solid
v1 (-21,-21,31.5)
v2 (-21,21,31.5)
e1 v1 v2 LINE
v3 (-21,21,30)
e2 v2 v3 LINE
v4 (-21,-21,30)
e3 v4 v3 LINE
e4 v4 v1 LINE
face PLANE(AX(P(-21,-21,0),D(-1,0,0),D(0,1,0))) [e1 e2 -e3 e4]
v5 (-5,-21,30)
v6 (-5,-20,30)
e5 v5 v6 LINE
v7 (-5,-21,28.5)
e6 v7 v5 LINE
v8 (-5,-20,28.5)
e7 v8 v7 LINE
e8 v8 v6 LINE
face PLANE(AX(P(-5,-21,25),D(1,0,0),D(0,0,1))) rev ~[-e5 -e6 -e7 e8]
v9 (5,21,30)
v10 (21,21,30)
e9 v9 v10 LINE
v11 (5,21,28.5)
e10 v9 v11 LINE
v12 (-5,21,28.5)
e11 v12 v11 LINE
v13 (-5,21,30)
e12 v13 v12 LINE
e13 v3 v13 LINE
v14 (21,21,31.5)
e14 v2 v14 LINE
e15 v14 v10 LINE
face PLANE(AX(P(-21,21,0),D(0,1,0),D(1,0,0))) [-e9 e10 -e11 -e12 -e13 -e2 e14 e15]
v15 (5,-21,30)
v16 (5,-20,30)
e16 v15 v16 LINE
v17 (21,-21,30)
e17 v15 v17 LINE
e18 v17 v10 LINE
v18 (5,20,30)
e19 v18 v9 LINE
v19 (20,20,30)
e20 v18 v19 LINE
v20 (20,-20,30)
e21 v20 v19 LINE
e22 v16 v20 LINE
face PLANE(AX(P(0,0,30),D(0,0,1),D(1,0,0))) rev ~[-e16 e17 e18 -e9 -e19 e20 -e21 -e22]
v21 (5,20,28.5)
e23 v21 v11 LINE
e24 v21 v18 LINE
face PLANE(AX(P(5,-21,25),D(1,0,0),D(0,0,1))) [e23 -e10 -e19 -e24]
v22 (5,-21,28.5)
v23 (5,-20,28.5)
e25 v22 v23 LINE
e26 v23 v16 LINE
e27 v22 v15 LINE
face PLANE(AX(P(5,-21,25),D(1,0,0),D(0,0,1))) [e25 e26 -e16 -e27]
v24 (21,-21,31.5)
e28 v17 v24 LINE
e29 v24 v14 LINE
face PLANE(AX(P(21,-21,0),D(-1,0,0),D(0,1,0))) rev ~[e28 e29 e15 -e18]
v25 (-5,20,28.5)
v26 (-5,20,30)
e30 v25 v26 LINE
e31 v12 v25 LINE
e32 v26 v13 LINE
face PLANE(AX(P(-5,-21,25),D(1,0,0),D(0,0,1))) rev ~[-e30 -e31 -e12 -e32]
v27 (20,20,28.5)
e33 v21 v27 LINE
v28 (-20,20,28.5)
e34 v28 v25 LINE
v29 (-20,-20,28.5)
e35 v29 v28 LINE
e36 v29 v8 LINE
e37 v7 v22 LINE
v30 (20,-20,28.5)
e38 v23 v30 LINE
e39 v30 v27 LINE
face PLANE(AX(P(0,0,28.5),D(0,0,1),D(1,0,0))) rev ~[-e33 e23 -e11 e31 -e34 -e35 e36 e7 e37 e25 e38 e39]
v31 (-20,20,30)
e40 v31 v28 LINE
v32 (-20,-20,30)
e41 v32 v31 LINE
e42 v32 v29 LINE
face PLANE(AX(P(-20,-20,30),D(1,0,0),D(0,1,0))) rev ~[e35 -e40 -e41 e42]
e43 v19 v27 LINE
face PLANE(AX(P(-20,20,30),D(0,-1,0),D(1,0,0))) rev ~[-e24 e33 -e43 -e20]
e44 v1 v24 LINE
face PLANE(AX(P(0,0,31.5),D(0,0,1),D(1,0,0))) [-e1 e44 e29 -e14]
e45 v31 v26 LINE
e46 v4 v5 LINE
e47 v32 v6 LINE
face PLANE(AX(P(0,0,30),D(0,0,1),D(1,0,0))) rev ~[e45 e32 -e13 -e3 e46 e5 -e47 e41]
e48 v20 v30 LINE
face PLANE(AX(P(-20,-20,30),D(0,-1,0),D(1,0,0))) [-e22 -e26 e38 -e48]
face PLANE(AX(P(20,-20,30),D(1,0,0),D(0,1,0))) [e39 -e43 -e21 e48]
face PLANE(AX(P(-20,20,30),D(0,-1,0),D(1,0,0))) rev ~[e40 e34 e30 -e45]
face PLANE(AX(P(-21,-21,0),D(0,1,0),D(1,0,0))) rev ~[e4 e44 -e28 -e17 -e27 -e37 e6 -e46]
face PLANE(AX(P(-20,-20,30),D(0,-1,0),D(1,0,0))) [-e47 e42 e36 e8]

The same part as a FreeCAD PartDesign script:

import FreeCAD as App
import Part
import Sketcher
Q = App.Units.Quantity


def add_polygon(sketch, points):
    """Adds a closed chain of lines whose ends are joined by coincident constraints."""
    first, n = sketch.GeometryCount, len(points)
    for a, b in zip(points, points[1:] + points[:1]):
        sketch.addGeometry(Part.LineSegment(App.Vector(*a, 0), App.Vector(*b, 0)), False)
    for i in range(n):
        sketch.addConstraint(Sketcher.Constraint("Coincident", first + i, 2, first + (i + 1) % n, 1))

doc = App.newDocument("Part")
body = doc.addObject("PartDesign::Body", "Body")

# Sketch on XY plane
sketch1 = body.newObject("Sketcher::SketchObject", "Sketch")
sketch1.AttachmentSupport = (doc.getObject("XY_Plane"), [""])
sketch1.MapMode = "FlatFace"
add_polygon(sketch1, [(-21, 21), (-21, -21), (21, -21), (21, 21)])  # lines 0-3
sketch1.addConstraint([
    Sketcher.Constraint("Vertical", 0),
    Sketcher.Constraint("Horizontal", 1),
    Sketcher.Constraint("Vertical", 2),
    Sketcher.Constraint("Horizontal", 3),
    Sketcher.Constraint("Symmetric", 0, 2, 2, 2, -1, 1),
    Sketcher.Constraint("Equal", 3, 0),
    Sketcher.Constraint("DistanceX", 1, 1, 1, 2, Q("42 mm")),
])
pad1 = body.newObject("PartDesign::Pad", "Pad")
pad1.Profile = sketch1
pad1.Length = 30

# Sketch on XY plane
sketch2 = body.newObject("Sketcher::SketchObject", "Sketch001")
sketch2.AttachmentSupport = (doc.getObject("XY_Plane"), [""])
sketch2.MapMode = "FlatFace"
sketch2.AttachmentOffset = App.Placement(App.Vector(0, 0, 30), App.Rotation())
add_polygon(sketch2, [(-20, 20), (-20, -20), (20, -20), (20, 20)])  # lines 0-3
sketch2.addConstraint([
    Sketcher.Constraint("Vertical", 0),
    Sketcher.Constraint("Horizontal", 1),
    Sketcher.Constraint("Vertical", 2),
    Sketcher.Constraint("Horizontal", 3),
    Sketcher.Constraint("Symmetric", 0, 2, 2, 2, -1, 1),
    Sketcher.Constraint("Equal", 3, 0),
    Sketcher.Constraint("DistanceX", 1, 1, 1, 2, Q("40 mm")),
])
pocket1 = body.newObject("PartDesign::Pocket", "Pocket")
pocket1.Profile = sketch2
pocket1.Length = 1.5

# Sketch on XY plane
sketch3 = body.newObject("Sketcher::SketchObject", "Sketch002")
sketch3.AttachmentSupport = (doc.getObject("XY_Plane"), [""])
sketch3.MapMode = "FlatFace"
sketch3.AttachmentOffset = App.Placement(App.Vector(0, 0, 28.5), App.Rotation())
add_polygon(sketch3, [(-19, 19), (-19, -19), (19, -19), (19, 19)])  # lines 0-3
sketch3.addConstraint([
    Sketcher.Constraint("Vertical", 0),
    Sketcher.Constraint("Horizontal", 1),
    Sketcher.Constraint("Vertical", 2),
    Sketcher.Constraint("Horizontal", 3),
    Sketcher.Constraint("Symmetric", 0, 2, 2, 2, -1, 1),
    Sketcher.Constraint("Equal", 3, 0),
    Sketcher.Constraint("DistanceX", 1, 1, 1, 2, Q("38 mm")),
])
pocket2 = body.newObject("PartDesign::Pocket", "Pocket001")
pocket2.Profile = sketch3
pocket2.Length = 28

# Sketch on XZ plane
sketch4 = body.newObject("Sketcher::SketchObject", "Sketch003")
sketch4.AttachmentSupport = (doc.getObject("XZ_Plane"), [""])
sketch4.MapMode = "FlatFace"
sketch4.AttachmentOffset = App.Placement(App.Vector(0, 0, 21), App.Rotation())
add_polygon(sketch4, [(-5, 30), (-5, 25), (5, 25), (5, 30)])  # lines 0-3
sketch4.addConstraint([
    Sketcher.Constraint("Vertical", 0),
    Sketcher.Constraint("Horizontal", 1),
    Sketcher.Constraint("Vertical", 2),
    Sketcher.Constraint("Horizontal", 3),
    Sketcher.Constraint("DistanceX", 1, 1, 1, 2, Q("10 mm")),
    Sketcher.Constraint("DistanceY", 0, 2, 0, 1, Q("5 mm")),
    Sketcher.Constraint("DistanceX", 0, 2, -1, 1, Q("5 mm")),
    Sketcher.Constraint("DistanceY", -1, 1, 0, 2, Q("25 mm")),
])
pocket3 = body.newObject("PartDesign::Pocket", "Pocket002")
pocket3.Profile = sketch4
pocket3.Length = 300
body2 = doc.addObject("PartDesign::Body", "Body001")
doc.recompute()

body2.BaseFeature = body
doc.recompute()

# Sketch on XY plane
sketch5 = body2.newObject("Sketcher::SketchObject", "Sketch004")
sketch5.AttachmentSupport = (doc.getObject("XY_Plane001"), [""])
sketch5.MapMode = "FlatFace"
sketch5.AttachmentOffset = App.Placement(App.Vector(0, 0, 30), App.Rotation())
add_polygon(sketch5, [(-21, 21), (-21, -21), (21, -21), (21, 21)])  # lines 0-3
sketch5.addConstraint([
    Sketcher.Constraint("Vertical", 0),
    Sketcher.Constraint("Horizontal", 1),
    Sketcher.Constraint("Vertical", 2),
    Sketcher.Constraint("Horizontal", 3),
    Sketcher.Constraint("Symmetric", 0, 2, 2, 2, -1, 1),
    Sketcher.Constraint("Equal", 3, 0),
    Sketcher.Constraint("DistanceX", 1, 1, 1, 2, Q("42 mm")),
])
pad2 = body2.newObject("PartDesign::Pad", "Pad001")
pad2.Profile = sketch5
pad2.Length = 3
pad2.Midplane = True
doc.recompute()

boolean = body2.newObject("PartDesign::Boolean", "Boolean")
boolean.Type = "Cut"
boolean.addObjects([body])

doc.recompute()
